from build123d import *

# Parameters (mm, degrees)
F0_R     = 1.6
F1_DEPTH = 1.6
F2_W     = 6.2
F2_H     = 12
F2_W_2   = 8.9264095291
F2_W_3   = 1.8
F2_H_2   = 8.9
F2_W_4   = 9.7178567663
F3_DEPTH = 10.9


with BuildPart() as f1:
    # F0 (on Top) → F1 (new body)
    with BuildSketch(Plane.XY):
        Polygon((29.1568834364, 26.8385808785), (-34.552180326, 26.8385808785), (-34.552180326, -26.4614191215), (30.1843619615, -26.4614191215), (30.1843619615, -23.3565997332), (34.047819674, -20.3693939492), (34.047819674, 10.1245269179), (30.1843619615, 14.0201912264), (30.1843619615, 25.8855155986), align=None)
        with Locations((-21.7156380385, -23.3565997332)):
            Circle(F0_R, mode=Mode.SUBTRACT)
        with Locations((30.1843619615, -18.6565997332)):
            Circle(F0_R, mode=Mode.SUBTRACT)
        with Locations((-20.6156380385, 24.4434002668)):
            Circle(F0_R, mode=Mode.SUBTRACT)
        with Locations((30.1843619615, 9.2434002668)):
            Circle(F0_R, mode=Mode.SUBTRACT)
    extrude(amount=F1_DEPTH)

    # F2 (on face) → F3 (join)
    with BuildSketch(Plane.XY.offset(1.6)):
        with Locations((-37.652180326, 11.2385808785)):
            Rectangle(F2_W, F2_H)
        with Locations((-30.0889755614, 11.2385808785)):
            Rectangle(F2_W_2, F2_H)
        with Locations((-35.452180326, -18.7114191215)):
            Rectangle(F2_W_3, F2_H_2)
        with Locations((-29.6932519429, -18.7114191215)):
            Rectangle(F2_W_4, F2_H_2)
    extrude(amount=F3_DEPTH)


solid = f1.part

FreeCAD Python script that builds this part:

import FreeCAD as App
import Part
import Sketcher
from FreeCAD import Vector
Q = App.Units.Quantity

doc = App.newDocument("Part")
params = doc.addObject("Spreadsheet::Sheet", "Params")
for row, (alias, value) in enumerate([
    ("sketch1_diameter", "3.2 mm"),
    ("sketch1_height", "53.3 mm"),
    ("pad1_length", "1.6 mm"),
    ("sketch2_height", "12 mm"),
    ("sketch2_height2", "8.9 mm"),
    ("pad2_length", "10.9 mm"),
], start=1):
    params.set(f"A{row}", alias)
    params.set(f"B{row}", "=" + value)
    params.setAlias(f"B{row}", alias)

body = doc.addObject("PartDesign::Body", "Body")

sketch1 = doc.addObject("Sketcher::SketchObject", "Sketch")
body.addObject(sketch1)
sketch1.AttachmentSupport = (doc.XY_Plane, [""])
sketch1.MapMode = "FlatFace"
sketch1.addGeometry(Part.LineSegment(Vector(29.2, 26.8, 0), Vector(-34.6, 26.8, 0)), False)
sketch1.addGeometry(Part.LineSegment(Vector(-34.6, 26.8, 0), Vector(-34.6, -26.5, 0)), False)
sketch1.addGeometry(Part.LineSegment(Vector(-34.6, -26.5, 0), Vector(30.2, -26.5, 0)), False)
sketch1.addGeometry(Part.LineSegment(Vector(30.2, -26.5, 0), Vector(30.2, -23.4, 0)), False)
sketch1.addGeometry(Part.LineSegment(Vector(30.2, -23.4, 0), Vector(34, -20.4, 0)), False)
sketch1.addGeometry(Part.LineSegment(Vector(34, -20.4, 0), Vector(34, 10.1, 0)), False)
sketch1.addGeometry(Part.LineSegment(Vector(34, 10.1, 0), Vector(30.2, 14, 0)), False)
sketch1.addGeometry(Part.LineSegment(Vector(30.2, 14, 0), Vector(30.2, 25.9, 0)), False)
sketch1.addGeometry(Part.LineSegment(Vector(30.2, 25.9, 0), Vector(29.2, 26.8, 0)), False)
sketch1.addGeometry(Part.Circle(Vector(-21.7, -23.4, 0), Vector(0, 0, 1), 1.6), False)
sketch1.addGeometry(Part.Circle(Vector(30.2, -18.7, 0), Vector(0, 0, 1), 1.6), False)
sketch1.addGeometry(Part.Circle(Vector(-20.6, 24.4, 0), Vector(0, 0, 1), 1.6), False)
sketch1.addGeometry(Part.Circle(Vector(30.2, 9.2, 0), Vector(0, 0, 1), 1.6), False)
sketch1.addConstraint(Sketcher.Constraint("Coincident", 0, 2, 1, 1))
sketch1.addConstraint(Sketcher.Constraint("Coincident", 1, 2, 2, 1))
sketch1.addConstraint(Sketcher.Constraint("Coincident", 2, 2, 3, 1))
sketch1.addConstraint(Sketcher.Constraint("Coincident", 3, 2, 4, 1))
sketch1.addConstraint(Sketcher.Constraint("Coincident", 4, 2, 5, 1))
sketch1.addConstraint(Sketcher.Constraint("Coincident", 5, 2, 6, 1))
sketch1.addConstraint(Sketcher.Constraint("Coincident", 6, 2, 7, 1))
sketch1.addConstraint(Sketcher.Constraint("Coincident", 7, 2, 8, 1))
sketch1.addConstraint(Sketcher.Constraint("Coincident", 8, 2, 0, 1))
sketch1.addConstraint(Sketcher.Constraint("Horizontal", 0))
sketch1.addConstraint(Sketcher.Constraint("Vertical", 1))
sketch1.addConstraint(Sketcher.Constraint("Horizontal", 2))
sketch1.addConstraint(Sketcher.Constraint("Vertical", 3))
sketch1.addConstraint(Sketcher.Constraint("Vertical", 5))
sketch1.addConstraint(Sketcher.Constraint("Vertical", 7))
sketch1.addConstraint(Sketcher.Constraint("Equal", 9, 10))
sketch1.addConstraint(Sketcher.Constraint("Equal", 10, 11))
sketch1.addConstraint(Sketcher.Constraint("Equal", 11, 12))
sketch1.addConstraint(Sketcher.Constraint("Horizontal", 9, 3, 3, 2))
sketch1.addConstraint(Sketcher.Constraint("Vertical", 10, 3, 12, 3))
sketch1.addConstraint(Sketcher.Constraint("Vertical", 12, 3, 2, 2))
sketch1.addConstraint(Sketcher.Constraint("Vertical", 3, 2, 6, 2))
sketch1.addConstraint(Sketcher.Constraint("Diameter", 9, Q("3.2 mm")))
sketch1.addConstraint(Sketcher.Constraint("DistanceY", 1, 2, 1, 1, Q("53.3 mm")))
sketch1.addConstraint(Sketcher.Constraint("DistanceX", 9, 3, 10, 3, Q("51.9 mm")))
sketch1.addConstraint(Sketcher.Constraint("DistanceY", 9, 3, 10, 3, Q("4.7 mm")))
sketch1.addConstraint(Sketcher.Constraint("DistanceX", 9, 3, 11, 3, Q("1.1 mm")))
sketch1.addConstraint(Sketcher.Constraint("DistanceY", 9, 3, 11, 3, Q("47.8 mm")))
sketch1.addConstraint(Sketcher.Constraint("DistanceY", 10, 3, 12, 3, Q("27.9 mm")))
sketch1.addConstraint(Sketcher.Constraint("DistanceY", 3, 1, 3, 2, Q("3.104819 mm")))
sketch1.addConstraint(Sketcher.Constraint("DistanceY", 5, 1, 5, 2, Q("30.493921 mm")))
sketch1.addConstraint(Sketcher.Constraint("DistanceY", 9, 3, -1, 1, Q("23.3566 mm")))
sketch1.addConstraint(Sketcher.Constraint("DistanceX", 0, 2, 0, 1, Q("63.709064 mm")))
sketch1.addConstraint(Sketcher.Constraint("DistanceX", 2, 1, 2, 2, Q("64.736542 mm")))
sketch1.addConstraint(Sketcher.Constraint("DistanceY", 7, 1, 7, 2, Q("11.865324 mm")))
sketch1.addConstraint(Sketcher.Constraint("DistanceX", 9, 3, -1, 1, Q("21.715638 mm")))
sketch1.addConstraint(Sketcher.Constraint("DistanceX", -1, 1, 4, 2, Q("34.04782 mm")))
sketch1.addConstraint(Sketcher.Constraint("DistanceY", -1, 1, 6, 2, Q("14.020191 mm")))
sketch1.addConstraint(Sketcher.Constraint("DistanceY", 5, 2, 7, 2, Q("15.760989 mm")))
sketch1.setExpression("Constraints[22]", "Params.sketch1_diameter")
sketch1.setExpression("Constraints[23]", "Params.sketch1_height")
pad1 = doc.addObject("PartDesign::Pad", "Pad")
body.addObject(pad1)
pad1.Profile = sketch1
pad1.setExpression("Length", "Params.pad1_length")

sketch2 = doc.addObject("Sketcher::SketchObject", "Sketch001")
body.addObject(sketch2)
sketch2.AttachmentSupport = (doc.XY_Plane, [""])
sketch2.MapMode = "FlatFace"
sketch2.AttachmentOffset = App.Placement(Vector(0, 0, 1.6), App.Rotation())
sketch2.addGeometry(Part.LineSegment(Vector(-41, 17, 0), Vector(-41, 5, 0)), False)
sketch2.addGeometry(Part.LineSegment(Vector(-41, 5, 0), Vector(-26, 5, 0)), False)
sketch2.addGeometry(Part.LineSegment(Vector(-26, 5, 0), Vector(-26, 17, 0)), False)
sketch2.addGeometry(Part.LineSegment(Vector(-26, 17, 0), Vector(-41, 17, 0)), False)
sketch2.addGeometry(Part.LineSegment(Vector(-36, -14, 0), Vector(-36, -23, 0)), False)
sketch2.addGeometry(Part.LineSegment(Vector(-36, -23, 0), Vector(-25, -23, 0)), False)
sketch2.addGeometry(Part.LineSegment(Vector(-25, -23, 0), Vector(-25, -14, 0)), False)
sketch2.addGeometry(Part.LineSegment(Vector(-25, -14, 0), Vector(-36, -14, 0)), False)
sketch2.addConstraint(Sketcher.Constraint("Coincident", 0, 2, 1, 1))
sketch2.addConstraint(Sketcher.Constraint("Coincident", 1, 2, 2, 1))
sketch2.addConstraint(Sketcher.Constraint("Coincident", 2, 2, 3, 1))
sketch2.addConstraint(Sketcher.Constraint("Coincident", 3, 2, 0, 1))
sketch2.addConstraint(Sketcher.Constraint("Coincident", 4, 2, 5, 1))
sketch2.addConstraint(Sketcher.Constraint("Coincident", 5, 2, 6, 1))
sketch2.addConstraint(Sketcher.Constraint("Coincident", 6, 2, 7, 1))
sketch2.addConstraint(Sketcher.Constraint("Coincident", 7, 2, 4, 1))
sketch2.addConstraint(Sketcher.Constraint("Vertical", 0))
sketch2.addConstraint(Sketcher.Constraint("Horizontal", 1))
sketch2.addConstraint(Sketcher.Constraint("Vertical", 2))
sketch2.addConstraint(Sketcher.Constraint("Horizontal", 3))
sketch2.addConstraint(Sketcher.Constraint("Vertical", 4))
sketch2.addConstraint(Sketcher.Constraint("Horizontal", 5))
sketch2.addConstraint(Sketcher.Constraint("Vertical", 6))
sketch2.addConstraint(Sketcher.Constraint("Horizontal", 7))
sketch2.addConstraint(Sketcher.Constraint("DistanceY", 0, 2, 0, 1, Q("12 mm")))
sketch2.addConstraint(Sketcher.Constraint("DistanceY", 4, 2, 4, 1, Q("8.9 mm")))
sketch2.addConstraint(Sketcher.Constraint("DistanceX", 0, 2, 4, 2, Q("4.4 mm")))
sketch2.addConstraint(Sketcher.Constraint("DistanceY", 4, 2, 0, 2, Q("28.4 mm")))
sketch2.addConstraint(Sketcher.Constraint("DistanceX", 1, 1, 1, 2, Q("15.12641 mm")))
sketch2.addConstraint(Sketcher.Constraint("DistanceX", 5, 1, 5, 2, Q("11.517857 mm")))
sketch2.addConstraint(Sketcher.Constraint("DistanceX", 0, 2, -1, 1, Q("40.75218 mm")))
sketch2.addConstraint(Sketcher.Constraint("DistanceY", -1, 1, 0, 2, Q("5.238581 mm")))
sketch2.setExpression("Constraints[16]", "Params.sketch2_height")
sketch2.setExpression("Constraints[17]", "Params.sketch2_height2")
pad2 = doc.addObject("PartDesign::Pad", "Pad001")
body.addObject(pad2)
pad2.Profile = sketch2
pad2.setExpression("Length", "Params.pad2_length")

doc.recompute()
